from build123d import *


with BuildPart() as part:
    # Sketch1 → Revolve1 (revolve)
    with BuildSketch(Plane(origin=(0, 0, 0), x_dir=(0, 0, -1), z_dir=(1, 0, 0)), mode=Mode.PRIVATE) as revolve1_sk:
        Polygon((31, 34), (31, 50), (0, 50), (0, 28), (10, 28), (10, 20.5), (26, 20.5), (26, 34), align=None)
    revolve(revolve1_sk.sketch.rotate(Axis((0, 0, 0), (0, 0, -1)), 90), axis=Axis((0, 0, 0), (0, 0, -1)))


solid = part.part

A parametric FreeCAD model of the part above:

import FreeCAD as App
import Part
import Sketcher
from FreeCAD import Vector


def add_polygon(sketch, points):
    """Adds a closed chain of lines whose ends are joined by coincident constraints."""
    first, n = sketch.GeometryCount, len(points)
    for a, b in zip(points, points[1:] + points[:1]):
        sketch.addGeometry(Part.LineSegment(App.Vector(*a, 0), App.Vector(*b, 0)), False)
    for i in range(n):
        sketch.addConstraint(Sketcher.Constraint("Coincident", first + i, 2, first + (i + 1) % n, 1))

doc = App.newDocument("Part")
body = doc.addObject("PartDesign::Body", "Body")

# Sketch on YZ plane
sketch1 = body.newObject("Sketcher::SketchObject", "Sketch")
sketch1.AttachmentSupport = (doc.getObject("YZ_Plane"), [""])
sketch1.MapMode = "FlatFace"
add_polygon(sketch1, [(34, -31), (50, -31), (50, 0), (28, 0), (28, -10), (20, -10), (20, -26), (34, -26)])  # lines 0-7
sketch1.addConstraint(Sketcher.Constraint("Horizontal", 0))
sketch1.addConstraint(Sketcher.Constraint("Vertical", 1))
sketch1.addConstraint(Sketcher.Constraint("Horizontal", 2))
sketch1.addConstraint(Sketcher.Constraint("Vertical", 3))
sketch1.addConstraint(Sketcher.Constraint("Horizontal", 4))
sketch1.addConstraint(Sketcher.Constraint("Vertical", 5))
sketch1.addConstraint(Sketcher.Constraint("Horizontal", 6))
sketch1.addConstraint(Sketcher.Constraint("Vertical", 7))
sketch1.addConstraint(Sketcher.Constraint("PointOnObject", 1, 2, -1))
sketch1.addConstraint(Sketcher.Constraint("Equal", 0, 5))
sketch1.addConstraint(Sketcher.Constraint("DistanceX", 0, 1, 0, 2, 16.0))
sketch1.addConstraint(Sketcher.Constraint("DistanceX", 2, 2, 2, 1, 22.0))
sketch1.addConstraint(Sketcher.Constraint("DistanceY", 1, 1, 1, 2, 31.0))
sketch1.addConstraint(Sketcher.Constraint("DistanceY", 3, 2, 3, 1, 10.0))
sketch1.addConstraint(Sketcher.Constraint("DistanceX", 4, 2, 4, 1, 7.5))
sketch1.addConstraint(Sketcher.Constraint("DistanceX", -1, 1, 0, 2, 50.0))
revolution = body.newObject("PartDesign::Revolution", "Revolution")
revolution.Profile = sketch1
revolution.ReferenceAxis = (sketch1, ["V_Axis"])
revolution.Angle = 360

doc.recompute()
